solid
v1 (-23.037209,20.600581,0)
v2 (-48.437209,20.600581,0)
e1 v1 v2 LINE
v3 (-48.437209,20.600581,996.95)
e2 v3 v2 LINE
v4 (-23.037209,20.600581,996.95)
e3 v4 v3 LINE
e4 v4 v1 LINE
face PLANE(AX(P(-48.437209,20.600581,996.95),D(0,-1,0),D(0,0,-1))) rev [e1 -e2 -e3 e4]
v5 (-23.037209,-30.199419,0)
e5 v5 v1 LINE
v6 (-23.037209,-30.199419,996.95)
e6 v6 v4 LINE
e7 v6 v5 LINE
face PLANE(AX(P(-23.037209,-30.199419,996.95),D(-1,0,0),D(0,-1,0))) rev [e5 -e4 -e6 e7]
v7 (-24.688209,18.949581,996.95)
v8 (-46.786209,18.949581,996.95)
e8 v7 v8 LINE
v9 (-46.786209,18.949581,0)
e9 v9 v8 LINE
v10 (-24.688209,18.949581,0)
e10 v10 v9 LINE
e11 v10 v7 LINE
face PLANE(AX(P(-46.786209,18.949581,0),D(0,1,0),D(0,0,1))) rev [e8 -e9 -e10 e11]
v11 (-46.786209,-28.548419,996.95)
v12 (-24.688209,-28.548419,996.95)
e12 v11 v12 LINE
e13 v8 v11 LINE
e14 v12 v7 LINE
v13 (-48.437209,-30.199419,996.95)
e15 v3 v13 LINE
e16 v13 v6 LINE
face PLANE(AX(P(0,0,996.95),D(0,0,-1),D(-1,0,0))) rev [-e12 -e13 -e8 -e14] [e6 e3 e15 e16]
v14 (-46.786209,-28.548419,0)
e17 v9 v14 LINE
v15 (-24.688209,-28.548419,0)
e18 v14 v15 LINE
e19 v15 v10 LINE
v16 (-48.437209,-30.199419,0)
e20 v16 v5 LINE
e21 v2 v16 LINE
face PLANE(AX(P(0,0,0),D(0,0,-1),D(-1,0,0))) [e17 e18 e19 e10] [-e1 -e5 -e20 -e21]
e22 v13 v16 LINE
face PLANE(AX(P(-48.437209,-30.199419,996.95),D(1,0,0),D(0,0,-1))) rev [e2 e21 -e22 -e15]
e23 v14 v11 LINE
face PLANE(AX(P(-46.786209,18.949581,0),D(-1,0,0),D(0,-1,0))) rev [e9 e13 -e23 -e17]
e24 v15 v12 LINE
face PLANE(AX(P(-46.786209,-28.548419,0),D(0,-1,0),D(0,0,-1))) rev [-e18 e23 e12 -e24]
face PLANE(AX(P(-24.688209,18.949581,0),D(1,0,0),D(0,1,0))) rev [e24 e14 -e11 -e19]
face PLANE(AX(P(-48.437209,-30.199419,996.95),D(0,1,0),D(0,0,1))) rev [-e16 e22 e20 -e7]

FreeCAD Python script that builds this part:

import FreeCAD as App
import Part
import Sketcher
from FreeCAD import Vector
Q = App.Units.Quantity

doc = App.newDocument("Part")
body = doc.addObject("PartDesign::Body", "Body")

# Sketch on XY plane
sketch1 = body.newObject("Sketcher::SketchObject", "Sketch")
sketch1.AttachmentSupport = (doc.getObject("XY_Plane"), [""])
sketch1.MapMode = "FlatFace"
sketch1.addGeometry(Part.LineSegment(Vector(-48, 21, 0), Vector(-48, -30, 0)), False)
sketch1.addGeometry(Part.LineSegment(Vector(-48, -30, 0), Vector(-23, -30, 0)), False)
sketch1.addGeometry(Part.LineSegment(Vector(-23, -30, 0), Vector(-23, 21, 0)), False)
sketch1.addGeometry(Part.LineSegment(Vector(-23, 21, 0), Vector(-48, 21, 0)), False)
sketch1.addConstraint(Sketcher.Constraint("Coincident", 0, 2, 1, 1))
sketch1.addConstraint(Sketcher.Constraint("Coincident", 1, 2, 2, 1))
sketch1.addConstraint(Sketcher.Constraint("Coincident", 2, 2, 3, 1))
sketch1.addConstraint(Sketcher.Constraint("Coincident", 3, 2, 0, 1))
sketch1.addConstraint(Sketcher.Constraint("Vertical", 0))
sketch1.addConstraint(Sketcher.Constraint("Horizontal", 1))
sketch1.addConstraint(Sketcher.Constraint("Vertical", 2))
sketch1.addConstraint(Sketcher.Constraint("Horizontal", 3))
sketch1.addConstraint(Sketcher.Constraint("DistanceX", 1, 1, 1, 2, Q("1 in")))
sketch1.addConstraint(Sketcher.Constraint("DistanceY", 0, 2, 0, 1, Q("2 in")))
sketch1.addConstraint(Sketcher.Constraint("DistanceX", 0, 2, -1, 1, Q("48.437209 mm")))
sketch1.addConstraint(Sketcher.Constraint("DistanceY", 0, 2, -1, 1, Q("30.199419 mm")))
pad1 = body.newObject("PartDesign::Pad", "Pad")
pad1.Profile = sketch1
pad1.Length = Q("39.25 in")

# Sketch on XY plane
sketch2 = body.newObject("Sketcher::SketchObject", "Sketch001")
sketch2.AttachmentSupport = (doc.getObject("XY_Plane"), [""])
sketch2.MapMode = "FlatFace"
sketch2.AttachmentOffset = App.Placement(Vector(0, 0, 39.25 * 25.4), App.Rotation())
sketch2.addGeometry(Part.LineSegment(Vector(-47, 19, 0), Vector(-47, -29, 0)), False)
sketch2.addGeometry(Part.LineSegment(Vector(-47, -29, 0), Vector(-25, -29, 0)), False)
sketch2.addGeometry(Part.LineSegment(Vector(-25, -29, 0), Vector(-25, 19, 0)), False)
sketch2.addGeometry(Part.LineSegment(Vector(-25, 19, 0), Vector(-47, 19, 0)), False)
sketch2.addConstraint(Sketcher.Constraint("Coincident", 0, 2, 1, 1))
sketch2.addConstraint(Sketcher.Constraint("Coincident", 1, 2, 2, 1))
sketch2.addConstraint(Sketcher.Constraint("Coincident", 2, 2, 3, 1))
sketch2.addConstraint(Sketcher.Constraint("Coincident", 3, 2, 0, 1))
sketch2.addConstraint(Sketcher.Constraint("Vertical", 0))
sketch2.addConstraint(Sketcher.Constraint("Horizontal", 1))
sketch2.addConstraint(Sketcher.Constraint("Vertical", 2))
sketch2.addConstraint(Sketcher.Constraint("Horizontal", 3))
sketch2.addConstraint(Sketcher.Constraint("DistanceX", 1, 1, 1, 2, Q("0.87 in")))
sketch2.addConstraint(Sketcher.Constraint("DistanceY", 0, 2, 0, 1, Q("1.87 in")))
sketch2.addConstraint(Sketcher.Constraint("DistanceX", 0, 2, -1, 1, Q("46.786209 mm")))
sketch2.addConstraint(Sketcher.Constraint("DistanceY", 0, 2, -1, 1, Q("28.548419 mm")))
pocket1 = body.newObject("PartDesign::Pocket", "Pocket")
pocket1.Profile = sketch2
pocket1.Type = "ThroughAll"

doc.recompute()
